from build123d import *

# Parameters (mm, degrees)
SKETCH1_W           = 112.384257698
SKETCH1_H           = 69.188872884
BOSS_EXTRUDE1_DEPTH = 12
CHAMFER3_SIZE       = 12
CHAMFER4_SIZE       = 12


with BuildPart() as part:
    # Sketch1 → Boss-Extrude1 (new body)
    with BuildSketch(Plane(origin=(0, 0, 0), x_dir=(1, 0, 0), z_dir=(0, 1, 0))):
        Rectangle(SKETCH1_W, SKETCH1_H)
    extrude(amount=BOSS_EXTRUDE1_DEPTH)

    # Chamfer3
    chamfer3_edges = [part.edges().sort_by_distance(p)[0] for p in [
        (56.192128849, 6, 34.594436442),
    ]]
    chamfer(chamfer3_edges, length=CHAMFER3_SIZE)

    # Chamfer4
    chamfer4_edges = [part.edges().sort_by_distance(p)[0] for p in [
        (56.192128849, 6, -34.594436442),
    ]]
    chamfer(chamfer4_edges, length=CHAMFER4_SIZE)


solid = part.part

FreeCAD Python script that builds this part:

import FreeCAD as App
import Part
import Sketcher

V = App.Vector
Q = App.Units.Quantity


def edges_at(feature, points):
    """Names of the edges that pass closest to the given points."""
    edges = feature.Shape.Edges
    near = lambda p: min(range(len(edges)), key=lambda i: edges[i].distToShape(Part.Vertex(*p))[0])
    return sorted({f"Edge{near(p) + 1}" for p in points})


def add_polygon(sketch, points):
    """Adds a closed chain of lines whose ends are joined by coincident constraints."""
    first, n = sketch.GeometryCount, len(points)
    for a, b in zip(points, points[1:] + points[:1]):
        sketch.addGeometry(Part.LineSegment(App.Vector(*a, 0), App.Vector(*b, 0)), False)
    for i in range(n):
        sketch.addConstraint(Sketcher.Constraint("Coincident", first + i, 2, first + (i + 1) % n, 1))

doc = App.newDocument("Part")
body = doc.addObject("PartDesign::Body", "Body")

# Sketch on XZ plane
sketch1 = doc.addObject("Sketcher::SketchObject", "Sketch")
body.addObject(sketch1)
sketch1.AttachmentSupport = (doc.XZ_Plane, [""])
sketch1.MapMode = "FlatFace"
add_polygon(sketch1, [(-56, -35), (-56, 35), (56, 35), (56, -35)])  # lines 0-3
sketch1.addConstraint([
    Sketcher.Constraint("Vertical", 0),
    Sketcher.Constraint("Horizontal", 1),
    Sketcher.Constraint("Vertical", 2),
    Sketcher.Constraint("Horizontal", 3),
    Sketcher.Constraint("Symmetric", 0, 2, 2, 2, -1, 1),
    Sketcher.Constraint("DistanceX", 1, 1, 1, 2, Q("112.384258 mm")),
    Sketcher.Constraint("DistanceY", 0, 1, 0, 2, Q("69.188873 mm")),
])
pad1 = doc.addObject("PartDesign::Pad", "Pad")
body.addObject(pad1)
pad1.Profile = sketch1
pad1.Length = 12
pad1.Reversed = True
doc.recompute()

chamfer = doc.addObject("PartDesign::Chamfer", "Chamfer")
body.addObject(chamfer)
chamfer.Base = (pad1, edges_at(pad1, [(56.192, 6, 34.594)]))
chamfer.Size = 12
doc.recompute()

chamfer2 = doc.addObject("PartDesign::Chamfer", "Chamfer001")
body.addObject(chamfer2)
chamfer2.Base = (chamfer, edges_at(chamfer, [(56.192, 6, -34.594)]))
chamfer2.Size = 12

doc.recompute()
